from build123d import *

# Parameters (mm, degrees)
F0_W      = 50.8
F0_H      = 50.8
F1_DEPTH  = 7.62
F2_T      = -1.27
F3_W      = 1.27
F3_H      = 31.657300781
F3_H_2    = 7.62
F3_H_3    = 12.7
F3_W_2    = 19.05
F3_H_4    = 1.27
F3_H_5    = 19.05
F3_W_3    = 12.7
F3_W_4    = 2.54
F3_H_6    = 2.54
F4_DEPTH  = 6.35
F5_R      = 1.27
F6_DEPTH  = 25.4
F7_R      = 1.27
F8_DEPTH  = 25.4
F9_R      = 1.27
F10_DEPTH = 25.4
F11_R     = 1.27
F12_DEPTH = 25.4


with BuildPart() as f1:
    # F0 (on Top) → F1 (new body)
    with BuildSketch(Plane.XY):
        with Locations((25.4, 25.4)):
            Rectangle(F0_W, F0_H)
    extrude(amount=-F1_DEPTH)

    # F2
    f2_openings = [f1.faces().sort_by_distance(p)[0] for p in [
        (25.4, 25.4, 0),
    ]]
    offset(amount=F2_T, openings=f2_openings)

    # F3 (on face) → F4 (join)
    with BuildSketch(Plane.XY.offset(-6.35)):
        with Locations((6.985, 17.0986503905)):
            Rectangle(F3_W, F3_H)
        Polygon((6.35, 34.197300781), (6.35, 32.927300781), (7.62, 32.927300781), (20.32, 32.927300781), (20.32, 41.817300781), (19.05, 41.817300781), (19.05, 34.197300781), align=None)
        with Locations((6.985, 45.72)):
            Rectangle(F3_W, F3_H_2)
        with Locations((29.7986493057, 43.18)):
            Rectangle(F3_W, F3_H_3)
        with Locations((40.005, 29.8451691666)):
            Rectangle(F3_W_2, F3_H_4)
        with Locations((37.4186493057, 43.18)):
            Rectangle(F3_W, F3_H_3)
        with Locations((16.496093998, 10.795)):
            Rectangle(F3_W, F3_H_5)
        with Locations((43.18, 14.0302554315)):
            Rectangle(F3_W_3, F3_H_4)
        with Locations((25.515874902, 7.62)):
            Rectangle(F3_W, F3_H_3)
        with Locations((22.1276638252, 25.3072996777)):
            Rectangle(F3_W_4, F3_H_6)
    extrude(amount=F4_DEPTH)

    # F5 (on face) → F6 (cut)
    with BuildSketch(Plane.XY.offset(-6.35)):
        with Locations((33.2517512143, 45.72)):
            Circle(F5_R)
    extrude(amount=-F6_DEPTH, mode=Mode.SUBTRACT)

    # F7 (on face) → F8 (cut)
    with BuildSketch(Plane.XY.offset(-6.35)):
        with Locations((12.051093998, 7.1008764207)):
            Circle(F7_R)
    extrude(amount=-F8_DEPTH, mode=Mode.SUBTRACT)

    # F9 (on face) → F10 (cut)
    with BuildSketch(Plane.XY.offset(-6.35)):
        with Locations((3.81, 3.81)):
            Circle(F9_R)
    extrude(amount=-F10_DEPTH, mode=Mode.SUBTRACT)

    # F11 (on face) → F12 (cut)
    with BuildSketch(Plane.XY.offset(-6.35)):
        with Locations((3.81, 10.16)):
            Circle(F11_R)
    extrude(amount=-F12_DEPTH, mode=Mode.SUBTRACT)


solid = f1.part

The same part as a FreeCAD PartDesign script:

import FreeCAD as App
import Part
import Sketcher
from FreeCAD import Vector
Q = App.Units.Quantity


def faces_at(feature, points):
    """Names of the faces that lie closest to the given points."""
    faces = feature.Shape.Faces
    near = lambda p: min(range(len(faces)), key=lambda i: faces[i].distToShape(Part.Vertex(*p))[0])
    return sorted({f"Face{near(p) + 1}" for p in points})

doc = App.newDocument("Part")
params = doc.addObject("Spreadsheet::Sheet", "Params")
for row, (alias, value) in enumerate([
    ("sketch1_width", "2 in"),
    ("pad1_length", "0.3 in"),
    ("thickness_wall", "0.05 in"),
    ("sketch2_width", "0.5 in"),
    ("sketch2_width2", "0.1 in"),
    ("sketch2_height", "0.3 in"),
    ("sketch2_width3", "0.05 in"),
    ("sketch2_width4", "0.75 in"),
    ("pad2_length", "0.25 in"),
    ("sketch3_diameter", "0.1 in"),
    ("pocket1_length", "1 in"),
    ("sketch4_diameter", "0.1 in"),
    ("pocket2_length", "1 in"),
    ("sketch5_diameter", "0.1 in"),
    ("pocket3_length", "1 in"),
    ("sketch6_diameter", "0.1 in"),
    ("pocket4_length", "1 in"),
], start=1):
    params.set(f"A{row}", alias)
    params.set(f"B{row}", "=" + value)
    params.setAlias(f"B{row}", alias)

body = doc.addObject("PartDesign::Body", "Body")

sketch1 = body.newObject("Sketcher::SketchObject", "Sketch")
sketch1.AttachmentSupport = (doc.getObject("XY_Plane"), [""])
sketch1.MapMode = "FlatFace"
sketch1.addGeometry([
    Part.LineSegment(Vector(0, 51, 0), Vector(0, 0, 0)),
    Part.LineSegment(Vector(0, 0, 0), Vector(51, 0, 0)),
    Part.LineSegment(Vector(51, 0, 0), Vector(51, 51, 0)),
    Part.LineSegment(Vector(51, 51, 0), Vector(0, 51, 0)),
], False)
sketch1.addConstraint([
    Sketcher.Constraint("Coincident", 0, 2, 1, 1),
    Sketcher.Constraint("Coincident", 1, 2, 2, 1),
    Sketcher.Constraint("Coincident", 2, 2, 3, 1),
    Sketcher.Constraint("Coincident", 3, 2, 0, 1),
    Sketcher.Constraint("Vertical", 0),
    Sketcher.Constraint("Horizontal", 1),
    Sketcher.Constraint("Vertical", 2),
    Sketcher.Constraint("Horizontal", 3),
    Sketcher.Constraint("Coincident", 0, 2, -1, 1),
    Sketcher.Constraint("Equal", 3, 0),
    Sketcher.Constraint("DistanceX", 1, 1, 1, 2, Q("2 in")),
])
sketch1.setExpression("Constraints[10]", "Params.sketch1_width")
pad1 = body.newObject("PartDesign::Pad", "Pad")
pad1.Profile = sketch1
pad1.setExpression("Length", "Params.pad1_length")
pad1.Reversed = True
doc.recompute()

thickness = body.newObject("PartDesign::Thickness", "Thickness")
thickness.Base = (pad1, faces_at(pad1, [(25.4, 25.4, 0)]))
thickness.setExpression("Value", "Params.thickness_wall")
thickness.Reversed = True
thickness.Join = "Arc"

sketch2 = body.newObject("Sketcher::SketchObject", "Sketch001")
sketch2.AttachmentSupport = (doc.getObject("XY_Plane"), [""])
sketch2.MapMode = "FlatFace"
sketch2.AttachmentOffset = App.Placement(Vector(0, 0, -0.25 * 25.4), App.Rotation())
sketch2.addGeometry([
    Part.LineSegment(Vector(6.3, 1.3, 0), Vector(7.6, 1.3, 0)),
    Part.LineSegment(Vector(7.6, 1.3, 0), Vector(7.6, 32.9, 0)),
    Part.LineSegment(Vector(7.6, 32.9, 0), Vector(20.3, 32.9, 0)),
    Part.LineSegment(Vector(20.3, 32.9, 0), Vector(20.3, 41.8, 0)),
    Part.LineSegment(Vector(20.3, 41.8, 0), Vector(19.1, 41.8, 0)),
    Part.LineSegment(Vector(19.1, 41.8, 0), Vector(19.1, 34.2, 0)),
    Part.LineSegment(Vector(19.1, 34.2, 0), Vector(6.3, 34.2, 0)),
    Part.LineSegment(Vector(6.3, 34.2, 0), Vector(6.3, 1.3, 0)),
    Part.LineSegment(Vector(6.3, 49.5, 0), Vector(6.3, 41.9, 0)),
    Part.LineSegment(Vector(6.3, 41.9, 0), Vector(7.6, 41.9, 0)),
    Part.LineSegment(Vector(7.6, 41.9, 0), Vector(7.6, 49.5, 0)),
    Part.LineSegment(Vector(7.6, 49.5, 0), Vector(6.3, 49.5, 0)),
    Part.LineSegment(Vector(29.2, 49.5, 0), Vector(29.2, 36.8, 0)),
    Part.LineSegment(Vector(29.2, 36.8, 0), Vector(30.4, 36.8, 0)),
    Part.LineSegment(Vector(30.4, 36.8, 0), Vector(30.4, 49.5, 0)),
    Part.LineSegment(Vector(30.4, 49.5, 0), Vector(29.2, 49.5, 0)),
    Part.LineSegment(Vector(30.5, 30.5, 0), Vector(30.5, 29.2, 0)),
    Part.LineSegment(Vector(30.5, 29.2, 0), Vector(49.5, 29.2, 0)),
    Part.LineSegment(Vector(49.5, 29.2, 0), Vector(49.5, 30.5, 0)),
    Part.LineSegment(Vector(49.5, 30.5, 0), Vector(30.5, 30.5, 0)),
    Part.LineSegment(Vector(36.8, 49.5, 0), Vector(36.8, 36.8, 0)),
    Part.LineSegment(Vector(36.8, 36.8, 0), Vector(38.1, 36.8, 0)),
    Part.LineSegment(Vector(38.1, 36.8, 0), Vector(38.1, 49.5, 0)),
    Part.LineSegment(Vector(38.1, 49.5, 0), Vector(36.8, 49.5, 0)),
    Part.LineSegment(Vector(15.9, 20.3, 0), Vector(15.9, 1.3, 0)),
    Part.LineSegment(Vector(15.9, 1.3, 0), Vector(17.1, 1.3, 0)),
    Part.LineSegment(Vector(17.1, 1.3, 0), Vector(17.1, 20.3, 0)),
    Part.LineSegment(Vector(17.1, 20.3, 0), Vector(15.9, 20.3, 0)),
    Part.LineSegment(Vector(36.8, 14.7, 0), Vector(36.8, 13.4, 0)),
    Part.LineSegment(Vector(36.8, 13.4, 0), Vector(49.5, 13.4, 0)),
    Part.LineSegment(Vector(49.5, 13.4, 0), Vector(49.5, 14.7, 0)),
    Part.LineSegment(Vector(49.5, 14.7, 0), Vector(36.8, 14.7, 0)),
    Part.LineSegment(Vector(24.9, 14, 0), Vector(24.9, 1.3, 0)),
    Part.LineSegment(Vector(24.9, 1.3, 0), Vector(26.2, 1.3, 0)),
    Part.LineSegment(Vector(26.2, 1.3, 0), Vector(26.2, 14, 0)),
    Part.LineSegment(Vector(26.2, 14, 0), Vector(24.9, 14, 0)),
    Part.LineSegment(Vector(20.9, 26.6, 0), Vector(20.9, 24, 0)),
    Part.LineSegment(Vector(20.9, 24, 0), Vector(23.4, 24, 0)),
    Part.LineSegment(Vector(23.4, 24, 0), Vector(23.4, 26.6, 0)),
    Part.LineSegment(Vector(23.4, 26.6, 0), Vector(20.9, 26.6, 0)),
], False)
sketch2.addConstraint([
    Sketcher.Constraint("Coincident", 0, 2, 1, 1),
    Sketcher.Constraint("Coincident", 1, 2, 2, 1),
    Sketcher.Constraint("Coincident", 2, 2, 3, 1),
    Sketcher.Constraint("Coincident", 3, 2, 4, 1),
    Sketcher.Constraint("Coincident", 4, 2, 5, 1),
    Sketcher.Constraint("Coincident", 5, 2, 6, 1),
    Sketcher.Constraint("Coincident", 6, 2, 7, 1),
    Sketcher.Constraint("Coincident", 7, 2, 0, 1),
    Sketcher.Constraint("Coincident", 8, 2, 9, 1),
    Sketcher.Constraint("Coincident", 9, 2, 10, 1),
    Sketcher.Constraint("Coincident", 10, 2, 11, 1),
    Sketcher.Constraint("Coincident", 11, 2, 8, 1),
    Sketcher.Constraint("Coincident", 12, 2, 13, 1),
    Sketcher.Constraint("Coincident", 13, 2, 14, 1),
    Sketcher.Constraint("Coincident", 14, 2, 15, 1),
    Sketcher.Constraint("Coincident", 15, 2, 12, 1),
    Sketcher.Constraint("Coincident", 16, 2, 17, 1),
    Sketcher.Constraint("Coincident", 17, 2, 18, 1),
    Sketcher.Constraint("Coincident", 18, 2, 19, 1),
    Sketcher.Constraint("Coincident", 19, 2, 16, 1),
    Sketcher.Constraint("Coincident", 20, 2, 21, 1),
    Sketcher.Constraint("Coincident", 21, 2, 22, 1),
    Sketcher.Constraint("Coincident", 22, 2, 23, 1),
    Sketcher.Constraint("Coincident", 23, 2, 20, 1),
    Sketcher.Constraint("Coincident", 24, 2, 25, 1),
    Sketcher.Constraint("Coincident", 25, 2, 26, 1),
    Sketcher.Constraint("Coincident", 26, 2, 27, 1),
    Sketcher.Constraint("Coincident", 27, 2, 24, 1),
    Sketcher.Constraint("Coincident", 28, 2, 29, 1),
    Sketcher.Constraint("Coincident", 29, 2, 30, 1),
    Sketcher.Constraint("Coincident", 30, 2, 31, 1),
    Sketcher.Constraint("Coincident", 31, 2, 28, 1),
    Sketcher.Constraint("Coincident", 32, 2, 33, 1),
    Sketcher.Constraint("Coincident", 33, 2, 34, 1),
    Sketcher.Constraint("Coincident", 34, 2, 35, 1),
    Sketcher.Constraint("Coincident", 35, 2, 32, 1),
    Sketcher.Constraint("Coincident", 36, 2, 37, 1),
    Sketcher.Constraint("Coincident", 37, 2, 38, 1),
    Sketcher.Constraint("Coincident", 38, 2, 39, 1),
    Sketcher.Constraint("Coincident", 39, 2, 36, 1),
    Sketcher.Constraint("Horizontal", 0),
    Sketcher.Constraint("Vertical", 1),
    Sketcher.Constraint("Horizontal", 2),
    Sketcher.Constraint("Vertical", 3),
    Sketcher.Constraint("Horizontal", 4),
    Sketcher.Constraint("Vertical", 5),
    Sketcher.Constraint("Horizontal", 6),
    Sketcher.Constraint("Vertical", 7),
    Sketcher.Constraint("Vertical", 8),
    Sketcher.Constraint("Horizontal", 9),
    Sketcher.Constraint("Vertical", 10),
    Sketcher.Constraint("Horizontal", 11),
    Sketcher.Constraint("Vertical", 12),
    Sketcher.Constraint("Horizontal", 13),
    Sketcher.Constraint("Vertical", 14),
    Sketcher.Constraint("Horizontal", 15),
    Sketcher.Constraint("Vertical", 16),
    Sketcher.Constraint("Horizontal", 17),
    Sketcher.Constraint("Vertical", 18),
    Sketcher.Constraint("Horizontal", 19),
    Sketcher.Constraint("Vertical", 20),
    Sketcher.Constraint("Horizontal", 21),
    Sketcher.Constraint("Vertical", 22),
    Sketcher.Constraint("Horizontal", 23),
    Sketcher.Constraint("Vertical", 24),
    Sketcher.Constraint("Horizontal", 25),
    Sketcher.Constraint("Vertical", 26),
    Sketcher.Constraint("Horizontal", 27),
    Sketcher.Constraint("Vertical", 28),
    Sketcher.Constraint("Horizontal", 29),
    Sketcher.Constraint("Vertical", 30),
    Sketcher.Constraint("Horizontal", 31),
    Sketcher.Constraint("Vertical", 32),
    Sketcher.Constraint("Horizontal", 33),
    Sketcher.Constraint("Vertical", 34),
    Sketcher.Constraint("Horizontal", 35),
    Sketcher.Constraint("Vertical", 36),
    Sketcher.Constraint("Horizontal", 37),
    Sketcher.Constraint("Vertical", 38),
    Sketcher.Constraint("Horizontal", 39),
    Sketcher.Constraint("Horizontal", 11, 2, 14, 2),
    Sketcher.Constraint("Horizontal", 13, 2, 20, 2),
    Sketcher.Constraint("Horizontal", 15, 2, 22, 2),
    Sketcher.Constraint("Horizontal", 7, 2, 24, 2),
    Sketcher.Constraint("Horizontal", 25, 2, 32, 2),
    Sketcher.Constraint("Vertical", 7, 2, 8, 2),
    Sketcher.Constraint("Vertical", 1, 2, 9, 2),
    Sketcher.Constraint("Vertical", 18, 2, 29, 2),
    Sketcher.Constraint("Equal", 0, 4),
    Sketcher.Constraint("Equal", 11, 13),
    Sketcher.Constraint("Equal", 15, 21),
    Sketcher.Constraint("Equal", 23, 25),
    Sketcher.Constraint("Equal", 6, 29),
    Sketcher.Constraint("Equal", 27, 33),
    Sketcher.Constraint("Equal", 5, 8),
    Sketcher.Constraint("Equal", 31, 12),
    Sketcher.Constraint("Equal", 35, 16),
    Sketcher.Constraint("Equal", 19, 24),
    Sketcher.Constraint("Equal", 18, 28),
    Sketcher.Constraint("Equal", 22, 32),
    Sketcher.Constraint("Equal", 39, 36),
    Sketcher.Constraint("DistanceX", 2, 1, 2, 2, Q("0.5 in")),
    Sketcher.Constraint("DistanceX", 37, 1, 37, 2, Q("0.1 in")),
    Sketcher.Constraint("DistanceY", 5, 2, 5, 1, Q("0.3 in")),
    Sketcher.Constraint("DistanceX", 0, 1, 0, 2, Q("0.05 in")),
    Sketcher.Constraint("DistanceX", 17, 1, 17, 2, Q("0.75 in")),
    Sketcher.Constraint("DistanceY", 3, 1, 3, 2, Q("0.35 in")),
    Sketcher.Constraint("DistanceX", -1, 1, 0, 2, Q("0.3 in")),
    Sketcher.Constraint("DistanceX", -1, 1, 16, 2, Q("1.2 in")),
    Sketcher.Constraint("DistanceY", -1, 1, 26, 2, Q("0.8 in")),
    Sketcher.Constraint("DistanceX", 12, 2, 20, 2, Q("0.3 in")),
    Sketcher.Constraint("DistanceY", 36, 2, 5, 2, Q("0.4 in")),
    Sketcher.Constraint("DistanceY", -1, 1, 8, 2, Q("1.65 in")),
    Sketcher.Constraint("DistanceY", 1, 1, 1, 2, 31.657301),
    Sketcher.Constraint("DistanceX", -1, 1, 12, 2, 29.163649),
    Sketcher.Constraint("DistanceY", -1, 1, 16, 2, 29.210169),
    Sketcher.Constraint("DistanceX", 25, 2, 32, 2, 7.749781),
    Sketcher.Constraint("DistanceX", 26, 2, 36, 2, 3.72657),
    Sketcher.Constraint("DistanceX", -1, 1, 24, 2, 15.861094),
    Sketcher.Constraint("DistanceY", -1, 1, 28, 2, 13.395255),
])
sketch2.setExpression("Constraints[101]", "Params.sketch2_width")
sketch2.setExpression("Constraints[102]", "Params.sketch2_width2")
sketch2.setExpression("Constraints[103]", "Params.sketch2_height")
sketch2.setExpression("Constraints[104]", "Params.sketch2_width3")
sketch2.setExpression("Constraints[105]", "Params.sketch2_width4")
pad2 = body.newObject("PartDesign::Pad", "Pad001")
pad2.Profile = sketch2
pad2.setExpression("Length", "Params.pad2_length")

sketch3 = body.newObject("Sketcher::SketchObject", "Sketch002")
sketch3.AttachmentSupport = (doc.getObject("XY_Plane"), [""])
sketch3.MapMode = "FlatFace"
sketch3.AttachmentOffset = App.Placement(Vector(0, 0, -0.25 * 25.4), App.Rotation())
sketch3.addGeometry(Part.Circle(Vector(33.3, 45.7, 0), Vector(0, 0, 1), 1.3), False)
sketch3.addConstraint([
    Sketcher.Constraint("Diameter", 0, Q("0.1 in")),
    Sketcher.Constraint("DistanceY", -1, 1, 0, 3, Q("1.8 in")),
    Sketcher.Constraint("DistanceX", -1, 1, 0, 3, 33.251751),
])
sketch3.setExpression("Constraints[0]", "Params.sketch3_diameter")
pocket1 = body.newObject("PartDesign::Pocket", "Pocket")
pocket1.Profile = sketch3
pocket1.setExpression("Length", "Params.pocket1_length")

sketch4 = body.newObject("Sketcher::SketchObject", "Sketch003")
sketch4.AttachmentSupport = (doc.getObject("XY_Plane"), [""])
sketch4.MapMode = "FlatFace"
sketch4.AttachmentOffset = App.Placement(Vector(0, 0, -0.25 * 25.4), App.Rotation())
sketch4.addGeometry(Part.Circle(Vector(12.1, 7.1, 0), Vector(0, 0, 1), 1.3), False)
sketch4.addConstraint([
    Sketcher.Constraint("Diameter", 0, Q("0.1 in")),
    Sketcher.Constraint("DistanceX", -1, 1, 0, 3, 12.051094),
    Sketcher.Constraint("DistanceY", -1, 1, 0, 3, 7.100876),
])
sketch4.setExpression("Constraints[0]", "Params.sketch4_diameter")
pocket2 = body.newObject("PartDesign::Pocket", "Pocket001")
pocket2.Profile = sketch4
pocket2.setExpression("Length", "Params.pocket2_length")

sketch5 = body.newObject("Sketcher::SketchObject", "Sketch004")
sketch5.AttachmentSupport = (doc.getObject("XY_Plane"), [""])
sketch5.MapMode = "FlatFace"
sketch5.AttachmentOffset = App.Placement(Vector(0, 0, -0.25 * 25.4), App.Rotation())
sketch5.addGeometry(Part.Circle(Vector(3.8, 3.8, 0), Vector(0, 0, 1), 1.3), False)
sketch5.addConstraint([
    Sketcher.Constraint("Diameter", 0, Q("0.1 in")),
    Sketcher.Constraint("DistanceX", -1, 1, 0, 3, Q("0.15 in")),
    Sketcher.Constraint("DistanceY", -1, 1, 0, 3, Q("0.15 in")),
])
sketch5.setExpression("Constraints[0]", "Params.sketch5_diameter")
pocket3 = body.newObject("PartDesign::Pocket", "Pocket002")
pocket3.Profile = sketch5
pocket3.setExpression("Length", "Params.pocket3_length")

sketch6 = body.newObject("Sketcher::SketchObject", "Sketch005")
sketch6.AttachmentSupport = (doc.getObject("XY_Plane"), [""])
sketch6.MapMode = "FlatFace"
sketch6.AttachmentOffset = App.Placement(Vector(0, 0, -0.25 * 25.4), App.Rotation())
sketch6.addGeometry(Part.Circle(Vector(3.8, 10.2, 0), Vector(0, 0, 1), 1.3), False)
sketch6.addConstraint([
    Sketcher.Constraint("Diameter", 0, Q("0.1 in")),
    Sketcher.Constraint("DistanceY", -1, 1, 0, 3, Q("0.4 in")),
    Sketcher.Constraint("DistanceX", -1, 1, 0, 3, Q("0.15 in")),
])
sketch6.setExpression("Constraints[0]", "Params.sketch6_diameter")
pocket4 = body.newObject("PartDesign::Pocket", "Pocket003")
pocket4.Profile = sketch6
pocket4.setExpression("Length", "Params.pocket4_length")

doc.recompute()
